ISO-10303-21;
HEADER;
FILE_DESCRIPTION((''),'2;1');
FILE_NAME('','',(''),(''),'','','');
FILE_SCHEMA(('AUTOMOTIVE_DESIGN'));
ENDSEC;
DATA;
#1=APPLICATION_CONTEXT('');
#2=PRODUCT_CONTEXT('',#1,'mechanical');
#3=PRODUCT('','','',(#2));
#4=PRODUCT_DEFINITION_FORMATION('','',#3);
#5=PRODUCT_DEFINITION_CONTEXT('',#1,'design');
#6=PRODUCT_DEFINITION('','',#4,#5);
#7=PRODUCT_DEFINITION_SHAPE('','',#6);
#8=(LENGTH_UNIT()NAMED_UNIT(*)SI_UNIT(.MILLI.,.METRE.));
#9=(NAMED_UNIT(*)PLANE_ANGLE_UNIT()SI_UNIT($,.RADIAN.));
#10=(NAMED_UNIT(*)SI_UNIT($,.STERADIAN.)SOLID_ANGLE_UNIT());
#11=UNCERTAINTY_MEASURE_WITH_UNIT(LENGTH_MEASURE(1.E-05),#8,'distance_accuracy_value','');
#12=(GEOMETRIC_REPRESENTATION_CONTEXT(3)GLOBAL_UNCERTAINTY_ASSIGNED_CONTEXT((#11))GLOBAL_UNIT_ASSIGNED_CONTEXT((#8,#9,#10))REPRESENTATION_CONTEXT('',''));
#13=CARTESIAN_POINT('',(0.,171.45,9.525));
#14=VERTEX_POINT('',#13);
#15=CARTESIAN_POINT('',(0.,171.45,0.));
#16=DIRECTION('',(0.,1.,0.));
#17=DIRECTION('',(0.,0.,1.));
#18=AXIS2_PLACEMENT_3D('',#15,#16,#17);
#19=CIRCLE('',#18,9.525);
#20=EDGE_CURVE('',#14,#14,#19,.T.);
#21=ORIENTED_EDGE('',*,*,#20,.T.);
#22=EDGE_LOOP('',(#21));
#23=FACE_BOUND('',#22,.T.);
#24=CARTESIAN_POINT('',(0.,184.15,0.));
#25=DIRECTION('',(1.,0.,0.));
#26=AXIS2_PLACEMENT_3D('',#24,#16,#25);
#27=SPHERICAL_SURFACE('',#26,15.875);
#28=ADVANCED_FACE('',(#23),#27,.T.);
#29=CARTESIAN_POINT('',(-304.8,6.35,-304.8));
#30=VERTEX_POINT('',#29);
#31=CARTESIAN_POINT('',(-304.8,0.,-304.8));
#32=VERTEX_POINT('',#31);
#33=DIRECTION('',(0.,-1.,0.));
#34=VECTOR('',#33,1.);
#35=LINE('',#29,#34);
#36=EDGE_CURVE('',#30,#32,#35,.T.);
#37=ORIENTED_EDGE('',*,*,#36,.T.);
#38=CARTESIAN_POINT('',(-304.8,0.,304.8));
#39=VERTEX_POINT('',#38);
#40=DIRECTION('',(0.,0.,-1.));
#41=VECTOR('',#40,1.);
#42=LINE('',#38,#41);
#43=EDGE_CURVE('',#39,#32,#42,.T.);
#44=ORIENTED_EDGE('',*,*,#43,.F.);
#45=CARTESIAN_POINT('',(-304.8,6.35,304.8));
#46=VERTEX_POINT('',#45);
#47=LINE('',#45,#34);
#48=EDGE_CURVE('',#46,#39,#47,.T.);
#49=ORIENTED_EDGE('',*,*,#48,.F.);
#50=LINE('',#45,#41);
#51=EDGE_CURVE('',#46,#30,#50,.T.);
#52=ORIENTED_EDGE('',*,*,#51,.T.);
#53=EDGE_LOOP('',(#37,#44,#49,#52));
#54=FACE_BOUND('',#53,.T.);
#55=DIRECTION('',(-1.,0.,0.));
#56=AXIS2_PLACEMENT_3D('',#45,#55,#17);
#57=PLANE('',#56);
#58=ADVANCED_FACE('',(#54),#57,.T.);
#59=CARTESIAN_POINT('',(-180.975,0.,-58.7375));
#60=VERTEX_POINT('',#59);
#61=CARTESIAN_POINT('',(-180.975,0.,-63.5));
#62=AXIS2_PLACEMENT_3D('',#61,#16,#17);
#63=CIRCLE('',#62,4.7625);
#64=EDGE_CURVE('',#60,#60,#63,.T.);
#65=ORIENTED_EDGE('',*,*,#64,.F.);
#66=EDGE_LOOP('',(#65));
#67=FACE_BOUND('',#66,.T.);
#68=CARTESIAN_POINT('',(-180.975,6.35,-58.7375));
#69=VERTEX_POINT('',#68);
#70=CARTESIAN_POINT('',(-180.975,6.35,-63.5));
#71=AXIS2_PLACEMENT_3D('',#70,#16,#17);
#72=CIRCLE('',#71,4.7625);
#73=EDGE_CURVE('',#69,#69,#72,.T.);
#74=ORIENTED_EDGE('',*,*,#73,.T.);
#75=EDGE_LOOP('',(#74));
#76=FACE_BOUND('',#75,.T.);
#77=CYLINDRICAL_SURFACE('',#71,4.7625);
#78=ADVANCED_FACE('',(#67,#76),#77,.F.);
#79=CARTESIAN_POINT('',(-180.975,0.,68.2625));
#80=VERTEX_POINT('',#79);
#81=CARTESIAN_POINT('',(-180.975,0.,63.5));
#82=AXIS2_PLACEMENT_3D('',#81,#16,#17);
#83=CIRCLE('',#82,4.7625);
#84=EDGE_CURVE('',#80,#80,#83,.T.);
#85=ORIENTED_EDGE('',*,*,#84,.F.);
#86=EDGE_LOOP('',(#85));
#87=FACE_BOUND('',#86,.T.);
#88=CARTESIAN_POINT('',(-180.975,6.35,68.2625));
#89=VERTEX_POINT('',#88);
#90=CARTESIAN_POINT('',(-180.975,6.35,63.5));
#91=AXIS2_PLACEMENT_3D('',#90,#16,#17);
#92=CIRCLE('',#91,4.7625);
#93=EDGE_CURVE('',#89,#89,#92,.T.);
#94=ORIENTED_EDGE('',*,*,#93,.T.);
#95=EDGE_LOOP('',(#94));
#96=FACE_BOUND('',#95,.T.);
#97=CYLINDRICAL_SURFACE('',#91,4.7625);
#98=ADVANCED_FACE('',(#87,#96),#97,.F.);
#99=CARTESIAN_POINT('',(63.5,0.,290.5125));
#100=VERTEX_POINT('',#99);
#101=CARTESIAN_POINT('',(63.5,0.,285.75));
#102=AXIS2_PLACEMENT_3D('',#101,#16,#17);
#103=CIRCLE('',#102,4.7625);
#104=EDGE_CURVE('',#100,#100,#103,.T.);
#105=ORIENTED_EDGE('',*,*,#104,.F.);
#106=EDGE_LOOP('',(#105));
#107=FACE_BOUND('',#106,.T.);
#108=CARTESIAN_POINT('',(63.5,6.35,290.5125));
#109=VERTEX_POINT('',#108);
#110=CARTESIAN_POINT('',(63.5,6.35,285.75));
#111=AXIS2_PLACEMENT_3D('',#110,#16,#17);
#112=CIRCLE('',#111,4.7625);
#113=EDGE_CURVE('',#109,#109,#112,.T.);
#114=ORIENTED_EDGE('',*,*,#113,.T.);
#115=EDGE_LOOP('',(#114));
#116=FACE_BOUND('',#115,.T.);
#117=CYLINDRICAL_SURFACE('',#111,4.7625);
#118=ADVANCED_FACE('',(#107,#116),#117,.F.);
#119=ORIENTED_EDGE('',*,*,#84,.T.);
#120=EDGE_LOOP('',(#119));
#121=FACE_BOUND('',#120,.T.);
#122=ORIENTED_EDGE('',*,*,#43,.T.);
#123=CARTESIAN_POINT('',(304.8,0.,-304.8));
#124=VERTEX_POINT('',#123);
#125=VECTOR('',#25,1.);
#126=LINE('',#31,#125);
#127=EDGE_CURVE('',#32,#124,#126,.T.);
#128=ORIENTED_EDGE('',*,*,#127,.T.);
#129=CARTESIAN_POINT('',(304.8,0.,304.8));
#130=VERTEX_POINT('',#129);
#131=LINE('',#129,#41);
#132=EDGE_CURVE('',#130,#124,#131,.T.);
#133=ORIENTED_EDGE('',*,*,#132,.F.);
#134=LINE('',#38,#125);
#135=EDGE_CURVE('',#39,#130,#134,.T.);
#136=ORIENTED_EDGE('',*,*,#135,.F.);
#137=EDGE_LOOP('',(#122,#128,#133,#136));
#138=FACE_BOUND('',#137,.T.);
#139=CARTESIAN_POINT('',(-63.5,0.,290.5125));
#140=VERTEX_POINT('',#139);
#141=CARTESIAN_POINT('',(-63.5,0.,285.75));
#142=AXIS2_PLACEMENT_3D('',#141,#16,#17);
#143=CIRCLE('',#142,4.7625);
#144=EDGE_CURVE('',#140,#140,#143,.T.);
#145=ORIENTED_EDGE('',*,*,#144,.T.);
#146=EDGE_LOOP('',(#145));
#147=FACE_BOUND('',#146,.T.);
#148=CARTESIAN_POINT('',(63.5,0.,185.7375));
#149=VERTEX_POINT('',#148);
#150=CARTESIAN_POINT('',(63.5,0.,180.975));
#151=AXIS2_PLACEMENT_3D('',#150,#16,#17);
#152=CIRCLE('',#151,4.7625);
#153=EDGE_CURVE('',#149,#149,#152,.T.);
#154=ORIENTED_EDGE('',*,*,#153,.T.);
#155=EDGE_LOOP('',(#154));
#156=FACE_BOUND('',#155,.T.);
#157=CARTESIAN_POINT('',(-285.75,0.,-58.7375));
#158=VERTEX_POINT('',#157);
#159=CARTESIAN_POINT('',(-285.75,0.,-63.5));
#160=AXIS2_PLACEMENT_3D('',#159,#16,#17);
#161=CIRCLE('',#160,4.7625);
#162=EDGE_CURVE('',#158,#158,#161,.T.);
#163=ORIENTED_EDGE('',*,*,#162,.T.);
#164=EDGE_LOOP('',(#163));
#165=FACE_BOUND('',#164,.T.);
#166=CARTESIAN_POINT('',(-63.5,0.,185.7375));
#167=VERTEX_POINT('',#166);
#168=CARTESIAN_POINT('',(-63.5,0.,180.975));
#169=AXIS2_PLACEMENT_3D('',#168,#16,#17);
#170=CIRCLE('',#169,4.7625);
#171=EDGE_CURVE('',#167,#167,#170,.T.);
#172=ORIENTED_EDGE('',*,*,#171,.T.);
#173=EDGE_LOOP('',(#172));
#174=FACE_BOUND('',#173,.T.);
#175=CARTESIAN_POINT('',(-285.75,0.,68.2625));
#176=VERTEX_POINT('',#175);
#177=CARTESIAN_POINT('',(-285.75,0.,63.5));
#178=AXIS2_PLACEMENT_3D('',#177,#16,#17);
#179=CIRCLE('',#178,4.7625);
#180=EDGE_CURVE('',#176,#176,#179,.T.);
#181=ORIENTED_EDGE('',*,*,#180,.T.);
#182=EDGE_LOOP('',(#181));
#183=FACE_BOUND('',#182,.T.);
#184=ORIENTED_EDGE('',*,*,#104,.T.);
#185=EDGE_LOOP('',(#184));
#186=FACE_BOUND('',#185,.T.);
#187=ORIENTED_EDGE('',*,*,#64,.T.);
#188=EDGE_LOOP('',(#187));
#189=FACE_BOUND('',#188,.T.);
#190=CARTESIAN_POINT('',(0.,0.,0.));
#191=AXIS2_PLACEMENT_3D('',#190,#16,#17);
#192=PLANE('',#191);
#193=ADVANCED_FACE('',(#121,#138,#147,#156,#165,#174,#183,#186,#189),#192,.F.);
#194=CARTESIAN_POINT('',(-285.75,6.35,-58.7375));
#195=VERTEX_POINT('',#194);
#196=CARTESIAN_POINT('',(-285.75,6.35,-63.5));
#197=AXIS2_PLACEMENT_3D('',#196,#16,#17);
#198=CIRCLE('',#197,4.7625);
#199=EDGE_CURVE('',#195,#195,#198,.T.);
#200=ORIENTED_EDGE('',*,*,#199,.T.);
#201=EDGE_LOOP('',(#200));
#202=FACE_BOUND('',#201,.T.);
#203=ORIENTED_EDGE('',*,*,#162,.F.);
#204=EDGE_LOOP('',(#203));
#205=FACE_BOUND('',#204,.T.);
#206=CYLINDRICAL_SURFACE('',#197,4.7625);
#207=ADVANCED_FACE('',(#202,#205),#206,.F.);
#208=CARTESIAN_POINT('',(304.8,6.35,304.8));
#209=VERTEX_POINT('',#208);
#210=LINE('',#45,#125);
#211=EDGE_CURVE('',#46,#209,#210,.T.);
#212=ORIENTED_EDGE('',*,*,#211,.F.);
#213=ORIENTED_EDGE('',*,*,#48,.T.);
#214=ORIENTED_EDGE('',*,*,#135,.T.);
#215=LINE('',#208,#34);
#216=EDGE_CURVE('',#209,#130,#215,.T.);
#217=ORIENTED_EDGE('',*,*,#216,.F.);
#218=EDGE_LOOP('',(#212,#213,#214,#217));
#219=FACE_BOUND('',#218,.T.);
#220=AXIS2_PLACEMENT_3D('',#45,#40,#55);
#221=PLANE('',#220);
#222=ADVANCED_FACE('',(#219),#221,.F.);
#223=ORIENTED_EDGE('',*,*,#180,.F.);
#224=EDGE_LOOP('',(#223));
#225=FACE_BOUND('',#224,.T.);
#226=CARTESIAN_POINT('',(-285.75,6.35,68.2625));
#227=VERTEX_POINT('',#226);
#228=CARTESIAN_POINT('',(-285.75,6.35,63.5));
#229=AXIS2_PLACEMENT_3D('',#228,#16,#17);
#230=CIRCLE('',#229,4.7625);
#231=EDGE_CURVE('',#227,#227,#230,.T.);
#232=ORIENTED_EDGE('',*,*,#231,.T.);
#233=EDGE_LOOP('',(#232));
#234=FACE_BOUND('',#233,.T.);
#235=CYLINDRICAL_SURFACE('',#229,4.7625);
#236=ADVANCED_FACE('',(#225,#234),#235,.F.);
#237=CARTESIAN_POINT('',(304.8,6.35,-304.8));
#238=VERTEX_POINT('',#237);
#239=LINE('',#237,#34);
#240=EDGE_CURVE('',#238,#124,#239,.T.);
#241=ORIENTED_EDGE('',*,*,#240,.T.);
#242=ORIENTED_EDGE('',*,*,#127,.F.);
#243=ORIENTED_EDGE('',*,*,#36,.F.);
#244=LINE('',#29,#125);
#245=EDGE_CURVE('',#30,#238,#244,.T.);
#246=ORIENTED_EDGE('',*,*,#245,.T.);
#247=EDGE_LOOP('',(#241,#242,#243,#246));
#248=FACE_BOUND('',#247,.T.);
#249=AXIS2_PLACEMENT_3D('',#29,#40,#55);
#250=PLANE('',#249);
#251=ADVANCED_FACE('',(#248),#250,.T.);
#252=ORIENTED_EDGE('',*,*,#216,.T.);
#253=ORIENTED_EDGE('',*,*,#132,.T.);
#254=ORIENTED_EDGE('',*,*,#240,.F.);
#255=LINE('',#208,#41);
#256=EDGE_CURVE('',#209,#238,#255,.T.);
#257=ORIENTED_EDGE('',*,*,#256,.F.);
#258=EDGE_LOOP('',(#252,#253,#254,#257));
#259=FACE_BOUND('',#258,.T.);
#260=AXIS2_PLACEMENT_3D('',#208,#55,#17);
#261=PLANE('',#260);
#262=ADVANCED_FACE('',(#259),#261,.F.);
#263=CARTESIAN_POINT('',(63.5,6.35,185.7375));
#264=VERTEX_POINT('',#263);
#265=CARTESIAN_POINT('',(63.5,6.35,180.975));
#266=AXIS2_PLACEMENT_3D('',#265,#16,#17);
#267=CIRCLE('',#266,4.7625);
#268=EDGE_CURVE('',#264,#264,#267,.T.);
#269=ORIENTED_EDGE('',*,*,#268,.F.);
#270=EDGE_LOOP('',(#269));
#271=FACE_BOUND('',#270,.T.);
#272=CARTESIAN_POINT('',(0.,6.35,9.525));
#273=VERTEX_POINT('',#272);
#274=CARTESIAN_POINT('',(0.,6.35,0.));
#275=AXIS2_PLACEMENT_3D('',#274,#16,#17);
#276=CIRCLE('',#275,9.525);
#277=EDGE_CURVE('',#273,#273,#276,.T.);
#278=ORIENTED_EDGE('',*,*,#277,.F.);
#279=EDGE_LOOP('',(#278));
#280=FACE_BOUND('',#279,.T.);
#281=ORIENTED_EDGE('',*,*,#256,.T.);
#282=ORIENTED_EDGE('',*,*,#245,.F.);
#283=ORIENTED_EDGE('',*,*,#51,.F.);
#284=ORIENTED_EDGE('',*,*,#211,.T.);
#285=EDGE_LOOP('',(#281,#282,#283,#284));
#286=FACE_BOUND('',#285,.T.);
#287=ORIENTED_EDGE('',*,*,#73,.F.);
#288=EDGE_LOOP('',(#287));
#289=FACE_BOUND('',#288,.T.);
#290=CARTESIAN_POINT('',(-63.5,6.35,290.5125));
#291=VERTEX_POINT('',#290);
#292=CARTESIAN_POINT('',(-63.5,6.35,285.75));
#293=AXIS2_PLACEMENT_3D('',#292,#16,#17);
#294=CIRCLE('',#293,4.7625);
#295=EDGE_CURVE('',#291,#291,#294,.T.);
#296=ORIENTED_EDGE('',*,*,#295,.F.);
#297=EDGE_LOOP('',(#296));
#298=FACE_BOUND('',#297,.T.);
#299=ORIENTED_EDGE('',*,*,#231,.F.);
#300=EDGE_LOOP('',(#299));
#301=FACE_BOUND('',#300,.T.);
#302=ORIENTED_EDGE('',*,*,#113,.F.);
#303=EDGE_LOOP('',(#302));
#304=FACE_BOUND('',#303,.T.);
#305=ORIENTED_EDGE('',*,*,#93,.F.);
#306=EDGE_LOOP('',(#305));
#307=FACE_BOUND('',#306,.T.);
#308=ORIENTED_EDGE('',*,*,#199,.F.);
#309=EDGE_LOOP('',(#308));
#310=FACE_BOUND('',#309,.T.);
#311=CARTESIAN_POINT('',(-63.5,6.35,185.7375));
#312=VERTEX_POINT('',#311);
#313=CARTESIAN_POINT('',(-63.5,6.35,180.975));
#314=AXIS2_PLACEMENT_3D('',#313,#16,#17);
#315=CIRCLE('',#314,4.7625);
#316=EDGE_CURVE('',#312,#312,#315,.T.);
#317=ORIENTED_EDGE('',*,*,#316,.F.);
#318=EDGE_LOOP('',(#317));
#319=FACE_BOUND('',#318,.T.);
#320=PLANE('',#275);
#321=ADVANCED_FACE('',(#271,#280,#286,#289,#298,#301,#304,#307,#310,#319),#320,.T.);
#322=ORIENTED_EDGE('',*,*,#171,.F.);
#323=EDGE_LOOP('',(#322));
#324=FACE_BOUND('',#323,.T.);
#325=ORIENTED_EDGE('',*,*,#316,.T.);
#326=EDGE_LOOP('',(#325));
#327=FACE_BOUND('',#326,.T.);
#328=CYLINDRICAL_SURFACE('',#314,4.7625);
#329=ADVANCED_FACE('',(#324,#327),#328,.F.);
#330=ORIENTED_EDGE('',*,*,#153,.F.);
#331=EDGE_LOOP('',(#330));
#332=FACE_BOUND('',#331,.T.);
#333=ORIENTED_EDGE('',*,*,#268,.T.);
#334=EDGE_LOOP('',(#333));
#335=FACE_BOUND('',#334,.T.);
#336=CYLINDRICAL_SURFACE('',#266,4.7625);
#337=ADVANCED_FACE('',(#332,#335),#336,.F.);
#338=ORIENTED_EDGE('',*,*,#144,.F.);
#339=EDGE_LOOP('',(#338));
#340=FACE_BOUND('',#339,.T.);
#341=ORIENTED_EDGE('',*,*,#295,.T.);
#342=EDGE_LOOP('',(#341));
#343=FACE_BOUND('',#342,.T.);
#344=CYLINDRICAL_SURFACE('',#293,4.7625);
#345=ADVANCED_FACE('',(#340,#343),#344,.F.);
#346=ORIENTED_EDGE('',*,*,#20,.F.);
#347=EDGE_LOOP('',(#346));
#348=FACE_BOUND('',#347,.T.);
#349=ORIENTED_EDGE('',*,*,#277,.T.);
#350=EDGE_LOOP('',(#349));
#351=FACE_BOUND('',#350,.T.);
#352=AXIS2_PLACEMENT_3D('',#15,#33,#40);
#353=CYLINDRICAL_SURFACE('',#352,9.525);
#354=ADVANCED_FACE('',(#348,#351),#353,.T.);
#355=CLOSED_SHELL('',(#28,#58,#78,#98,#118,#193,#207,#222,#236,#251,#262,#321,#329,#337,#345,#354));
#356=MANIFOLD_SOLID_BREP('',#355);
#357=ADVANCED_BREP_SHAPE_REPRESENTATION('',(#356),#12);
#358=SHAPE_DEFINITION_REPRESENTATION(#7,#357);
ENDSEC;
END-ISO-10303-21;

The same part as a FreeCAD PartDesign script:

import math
import FreeCAD as App
import Part
import Sketcher
from FreeCAD import Vector
Q = App.Units.Quantity

doc = App.newDocument("Part")
body = doc.addObject("PartDesign::Body", "Body")

# Sketch on XZ plane
sketch1 = body.newObject("Sketcher::SketchObject", "Sketch")
sketch1.AttachmentSupport = (doc.getObject("XZ_Plane"), [""])
sketch1.MapMode = "FlatFace"
sketch1.addGeometry([
    Part.LineSegment(Vector(-305, -305, 0), Vector(-305, 305, 0)),
    Part.LineSegment(Vector(-305, 305, 0), Vector(305, 305, 0)),
    Part.LineSegment(Vector(305, 305, 0), Vector(305, -305, 0)),
    Part.LineSegment(Vector(305, -305, 0), Vector(-305, -305, 0)),
], False)
sketch1.addConstraint([
    Sketcher.Constraint("Coincident", 0, 2, 1, 1),
    Sketcher.Constraint("Coincident", 1, 2, 2, 1),
    Sketcher.Constraint("Coincident", 2, 2, 3, 1),
    Sketcher.Constraint("Coincident", 3, 2, 0, 1),
    Sketcher.Constraint("Vertical", 0),
    Sketcher.Constraint("Horizontal", 1),
    Sketcher.Constraint("Vertical", 2),
    Sketcher.Constraint("Horizontal", 3),
    Sketcher.Constraint("Symmetric", 0, 2, 2, 2, -1, 1),
    Sketcher.Constraint("Equal", 3, 0),
    Sketcher.Constraint("DistanceX", 1, 1, 1, 2, Q("24 in")),
])
pad1 = body.newObject("PartDesign::Pad", "Pad")
pad1.Profile = sketch1
pad1.Length = Q("0.25 in")
pad1.Reversed = True

# Sketch on XZ plane
sketch2 = body.newObject("Sketcher::SketchObject", "Sketch001")
sketch2.AttachmentSupport = (doc.getObject("XZ_Plane"), [""])
sketch2.MapMode = "FlatFace"
sketch2.AttachmentOffset = App.Placement(Vector(0, 0, -0.25 * 25.4), App.Rotation())
sketch2.addGeometry([
    Part.Circle(Vector(-63.5, 285.8, 0), Vector(0, 0, 1), 4.8),  # 0
    Part.Circle(Vector(63.5, 285.8, 0), Vector(0, 0, 1), 4.8),  # 1
    Part.Circle(Vector(-285.8, -63.5, 0), Vector(0, 0, 1), 4.8),  # 2
    Part.Circle(Vector(-285.8, 63.5, 0), Vector(0, 0, 1), 4.8),  # 3
    Part.Circle(Vector(-63.5, 181, 0), Vector(0, 0, 1), 4.8),  # 4
    Part.Circle(Vector(63.5, 181, 0), Vector(0, 0, 1), 4.8),  # 5
    Part.Circle(Vector(-181, 63.5, 0), Vector(0, 0, 1), 4.8),  # 6
    Part.Circle(Vector(-181, -63.5, 0), Vector(0, 0, 1), 4.8),  # 7
], False)
sketch2.addConstraint([
    Sketcher.Constraint("Equal", 0, 1),
    Sketcher.Constraint("Equal", 1, 2),
    Sketcher.Constraint("Equal", 2, 3),
    Sketcher.Constraint("Equal", 3, 4),
    Sketcher.Constraint("Equal", 4, 5),
    Sketcher.Constraint("Equal", 5, 6),
    Sketcher.Constraint("Equal", 6, 7),
    Sketcher.Constraint("Symmetric", 0, 3, 1, 3, -2),
    Sketcher.Constraint("Symmetric", 4, 3, 5, 3, -2),
    Sketcher.Constraint("Symmetric", 2, 3, 3, 3, -1),
    Sketcher.Constraint("Symmetric", 6, 3, 7, 3, -1),
    Sketcher.Constraint("Horizontal", 3, 3, 6, 3),
    Sketcher.Constraint("Vertical", 0, 3, 4, 3),
    Sketcher.Constraint("Diameter", 0, Q("0.375 in")),
    Sketcher.Constraint("DistanceX", 0, 3, 1, 3, Q("5 in")),
    Sketcher.Constraint("DistanceY", 2, 3, 3, 3, Q("5 in")),
    Sketcher.Constraint("DistanceY", -1, 1, 0, 3, Q("11.25 in")),
    Sketcher.Constraint("DistanceX", 2, 3, -1, 1, Q("11.25 in")),
    Sketcher.Constraint("DistanceY", -1, 1, 4, 3, Q("7.125 in")),
    Sketcher.Constraint("DistanceX", 6, 3, -1, 1, Q("7.125 in")),
])
doc.recompute()
hole = body.newObject("PartDesign::Hole", "Hole")
hole.Profile = sketch2
hole.ThreadType = "None"
hole.Diameter = Q("0.375 in")
hole.DepthType = "Dimension"
hole.Depth = Q("0.46 in")
hole.DrillPoint = "Angled"
hole.DrillPointAngle = 118
hole.Reversed = True

# Sketch on XZ plane
sketch3 = body.newObject("Sketcher::SketchObject", "Sketch002")
sketch3.AttachmentSupport = (doc.getObject("XZ_Plane"), [""])
sketch3.MapMode = "FlatFace"
sketch3.AttachmentOffset = App.Placement(Vector(0, 0, -0.25 * 25.4), App.Rotation())
sketch3.addGeometry(Part.Circle(Vector(0, 0, 0), Vector(0, 0, 1), 10), False)
sketch3.addConstraint([
    Sketcher.Constraint("Coincident", 0, 3, -1, 1),
    Sketcher.Constraint("Diameter", 0, Q("0.75 in")),
])
pad2 = body.newObject("PartDesign::Pad", "Pad001")
pad2.Profile = sketch3
pad2.Length = Q("6.5 in")
pad2.Reversed = True

# Sketch on XY plane
sketch4 = body.newObject("Sketcher::SketchObject", "Sketch003")
sketch4.AttachmentSupport = (doc.getObject("XY_Plane"), [""])
sketch4.MapMode = "FlatFace"
sketch4.addGeometry([
    Part.LineSegment(Vector(0, 168, 0), Vector(0, 200, 0)),
    Part.ArcOfCircle(Part.Circle(Vector(0, 184, 0), Vector(0, 0, 1), 16), math.radians(90), math.radians(270)),
], False)
sketch4.addConstraint([
    Sketcher.Constraint("Coincident", 0, 1, 1, 2),
    Sketcher.Constraint("Coincident", 1, 1, 0, 2),
    Sketcher.Constraint("Vertical", 0),
    Sketcher.Constraint("PointOnObject", 1, 3, -2),
    Sketcher.Constraint("PointOnObject", 0, 1, -2),
    Sketcher.Constraint("Radius", 1, Q("0.625 in")),
    Sketcher.Constraint("DistanceY", -1, 1, 1, 3, Q("7.25 in")),
])
revolution = body.newObject("PartDesign::Revolution", "Revolution")
revolution.Profile = sketch4
revolution.ReferenceAxis = (sketch4, ["V_Axis"])
revolution.Angle = 360

doc.recompute()
